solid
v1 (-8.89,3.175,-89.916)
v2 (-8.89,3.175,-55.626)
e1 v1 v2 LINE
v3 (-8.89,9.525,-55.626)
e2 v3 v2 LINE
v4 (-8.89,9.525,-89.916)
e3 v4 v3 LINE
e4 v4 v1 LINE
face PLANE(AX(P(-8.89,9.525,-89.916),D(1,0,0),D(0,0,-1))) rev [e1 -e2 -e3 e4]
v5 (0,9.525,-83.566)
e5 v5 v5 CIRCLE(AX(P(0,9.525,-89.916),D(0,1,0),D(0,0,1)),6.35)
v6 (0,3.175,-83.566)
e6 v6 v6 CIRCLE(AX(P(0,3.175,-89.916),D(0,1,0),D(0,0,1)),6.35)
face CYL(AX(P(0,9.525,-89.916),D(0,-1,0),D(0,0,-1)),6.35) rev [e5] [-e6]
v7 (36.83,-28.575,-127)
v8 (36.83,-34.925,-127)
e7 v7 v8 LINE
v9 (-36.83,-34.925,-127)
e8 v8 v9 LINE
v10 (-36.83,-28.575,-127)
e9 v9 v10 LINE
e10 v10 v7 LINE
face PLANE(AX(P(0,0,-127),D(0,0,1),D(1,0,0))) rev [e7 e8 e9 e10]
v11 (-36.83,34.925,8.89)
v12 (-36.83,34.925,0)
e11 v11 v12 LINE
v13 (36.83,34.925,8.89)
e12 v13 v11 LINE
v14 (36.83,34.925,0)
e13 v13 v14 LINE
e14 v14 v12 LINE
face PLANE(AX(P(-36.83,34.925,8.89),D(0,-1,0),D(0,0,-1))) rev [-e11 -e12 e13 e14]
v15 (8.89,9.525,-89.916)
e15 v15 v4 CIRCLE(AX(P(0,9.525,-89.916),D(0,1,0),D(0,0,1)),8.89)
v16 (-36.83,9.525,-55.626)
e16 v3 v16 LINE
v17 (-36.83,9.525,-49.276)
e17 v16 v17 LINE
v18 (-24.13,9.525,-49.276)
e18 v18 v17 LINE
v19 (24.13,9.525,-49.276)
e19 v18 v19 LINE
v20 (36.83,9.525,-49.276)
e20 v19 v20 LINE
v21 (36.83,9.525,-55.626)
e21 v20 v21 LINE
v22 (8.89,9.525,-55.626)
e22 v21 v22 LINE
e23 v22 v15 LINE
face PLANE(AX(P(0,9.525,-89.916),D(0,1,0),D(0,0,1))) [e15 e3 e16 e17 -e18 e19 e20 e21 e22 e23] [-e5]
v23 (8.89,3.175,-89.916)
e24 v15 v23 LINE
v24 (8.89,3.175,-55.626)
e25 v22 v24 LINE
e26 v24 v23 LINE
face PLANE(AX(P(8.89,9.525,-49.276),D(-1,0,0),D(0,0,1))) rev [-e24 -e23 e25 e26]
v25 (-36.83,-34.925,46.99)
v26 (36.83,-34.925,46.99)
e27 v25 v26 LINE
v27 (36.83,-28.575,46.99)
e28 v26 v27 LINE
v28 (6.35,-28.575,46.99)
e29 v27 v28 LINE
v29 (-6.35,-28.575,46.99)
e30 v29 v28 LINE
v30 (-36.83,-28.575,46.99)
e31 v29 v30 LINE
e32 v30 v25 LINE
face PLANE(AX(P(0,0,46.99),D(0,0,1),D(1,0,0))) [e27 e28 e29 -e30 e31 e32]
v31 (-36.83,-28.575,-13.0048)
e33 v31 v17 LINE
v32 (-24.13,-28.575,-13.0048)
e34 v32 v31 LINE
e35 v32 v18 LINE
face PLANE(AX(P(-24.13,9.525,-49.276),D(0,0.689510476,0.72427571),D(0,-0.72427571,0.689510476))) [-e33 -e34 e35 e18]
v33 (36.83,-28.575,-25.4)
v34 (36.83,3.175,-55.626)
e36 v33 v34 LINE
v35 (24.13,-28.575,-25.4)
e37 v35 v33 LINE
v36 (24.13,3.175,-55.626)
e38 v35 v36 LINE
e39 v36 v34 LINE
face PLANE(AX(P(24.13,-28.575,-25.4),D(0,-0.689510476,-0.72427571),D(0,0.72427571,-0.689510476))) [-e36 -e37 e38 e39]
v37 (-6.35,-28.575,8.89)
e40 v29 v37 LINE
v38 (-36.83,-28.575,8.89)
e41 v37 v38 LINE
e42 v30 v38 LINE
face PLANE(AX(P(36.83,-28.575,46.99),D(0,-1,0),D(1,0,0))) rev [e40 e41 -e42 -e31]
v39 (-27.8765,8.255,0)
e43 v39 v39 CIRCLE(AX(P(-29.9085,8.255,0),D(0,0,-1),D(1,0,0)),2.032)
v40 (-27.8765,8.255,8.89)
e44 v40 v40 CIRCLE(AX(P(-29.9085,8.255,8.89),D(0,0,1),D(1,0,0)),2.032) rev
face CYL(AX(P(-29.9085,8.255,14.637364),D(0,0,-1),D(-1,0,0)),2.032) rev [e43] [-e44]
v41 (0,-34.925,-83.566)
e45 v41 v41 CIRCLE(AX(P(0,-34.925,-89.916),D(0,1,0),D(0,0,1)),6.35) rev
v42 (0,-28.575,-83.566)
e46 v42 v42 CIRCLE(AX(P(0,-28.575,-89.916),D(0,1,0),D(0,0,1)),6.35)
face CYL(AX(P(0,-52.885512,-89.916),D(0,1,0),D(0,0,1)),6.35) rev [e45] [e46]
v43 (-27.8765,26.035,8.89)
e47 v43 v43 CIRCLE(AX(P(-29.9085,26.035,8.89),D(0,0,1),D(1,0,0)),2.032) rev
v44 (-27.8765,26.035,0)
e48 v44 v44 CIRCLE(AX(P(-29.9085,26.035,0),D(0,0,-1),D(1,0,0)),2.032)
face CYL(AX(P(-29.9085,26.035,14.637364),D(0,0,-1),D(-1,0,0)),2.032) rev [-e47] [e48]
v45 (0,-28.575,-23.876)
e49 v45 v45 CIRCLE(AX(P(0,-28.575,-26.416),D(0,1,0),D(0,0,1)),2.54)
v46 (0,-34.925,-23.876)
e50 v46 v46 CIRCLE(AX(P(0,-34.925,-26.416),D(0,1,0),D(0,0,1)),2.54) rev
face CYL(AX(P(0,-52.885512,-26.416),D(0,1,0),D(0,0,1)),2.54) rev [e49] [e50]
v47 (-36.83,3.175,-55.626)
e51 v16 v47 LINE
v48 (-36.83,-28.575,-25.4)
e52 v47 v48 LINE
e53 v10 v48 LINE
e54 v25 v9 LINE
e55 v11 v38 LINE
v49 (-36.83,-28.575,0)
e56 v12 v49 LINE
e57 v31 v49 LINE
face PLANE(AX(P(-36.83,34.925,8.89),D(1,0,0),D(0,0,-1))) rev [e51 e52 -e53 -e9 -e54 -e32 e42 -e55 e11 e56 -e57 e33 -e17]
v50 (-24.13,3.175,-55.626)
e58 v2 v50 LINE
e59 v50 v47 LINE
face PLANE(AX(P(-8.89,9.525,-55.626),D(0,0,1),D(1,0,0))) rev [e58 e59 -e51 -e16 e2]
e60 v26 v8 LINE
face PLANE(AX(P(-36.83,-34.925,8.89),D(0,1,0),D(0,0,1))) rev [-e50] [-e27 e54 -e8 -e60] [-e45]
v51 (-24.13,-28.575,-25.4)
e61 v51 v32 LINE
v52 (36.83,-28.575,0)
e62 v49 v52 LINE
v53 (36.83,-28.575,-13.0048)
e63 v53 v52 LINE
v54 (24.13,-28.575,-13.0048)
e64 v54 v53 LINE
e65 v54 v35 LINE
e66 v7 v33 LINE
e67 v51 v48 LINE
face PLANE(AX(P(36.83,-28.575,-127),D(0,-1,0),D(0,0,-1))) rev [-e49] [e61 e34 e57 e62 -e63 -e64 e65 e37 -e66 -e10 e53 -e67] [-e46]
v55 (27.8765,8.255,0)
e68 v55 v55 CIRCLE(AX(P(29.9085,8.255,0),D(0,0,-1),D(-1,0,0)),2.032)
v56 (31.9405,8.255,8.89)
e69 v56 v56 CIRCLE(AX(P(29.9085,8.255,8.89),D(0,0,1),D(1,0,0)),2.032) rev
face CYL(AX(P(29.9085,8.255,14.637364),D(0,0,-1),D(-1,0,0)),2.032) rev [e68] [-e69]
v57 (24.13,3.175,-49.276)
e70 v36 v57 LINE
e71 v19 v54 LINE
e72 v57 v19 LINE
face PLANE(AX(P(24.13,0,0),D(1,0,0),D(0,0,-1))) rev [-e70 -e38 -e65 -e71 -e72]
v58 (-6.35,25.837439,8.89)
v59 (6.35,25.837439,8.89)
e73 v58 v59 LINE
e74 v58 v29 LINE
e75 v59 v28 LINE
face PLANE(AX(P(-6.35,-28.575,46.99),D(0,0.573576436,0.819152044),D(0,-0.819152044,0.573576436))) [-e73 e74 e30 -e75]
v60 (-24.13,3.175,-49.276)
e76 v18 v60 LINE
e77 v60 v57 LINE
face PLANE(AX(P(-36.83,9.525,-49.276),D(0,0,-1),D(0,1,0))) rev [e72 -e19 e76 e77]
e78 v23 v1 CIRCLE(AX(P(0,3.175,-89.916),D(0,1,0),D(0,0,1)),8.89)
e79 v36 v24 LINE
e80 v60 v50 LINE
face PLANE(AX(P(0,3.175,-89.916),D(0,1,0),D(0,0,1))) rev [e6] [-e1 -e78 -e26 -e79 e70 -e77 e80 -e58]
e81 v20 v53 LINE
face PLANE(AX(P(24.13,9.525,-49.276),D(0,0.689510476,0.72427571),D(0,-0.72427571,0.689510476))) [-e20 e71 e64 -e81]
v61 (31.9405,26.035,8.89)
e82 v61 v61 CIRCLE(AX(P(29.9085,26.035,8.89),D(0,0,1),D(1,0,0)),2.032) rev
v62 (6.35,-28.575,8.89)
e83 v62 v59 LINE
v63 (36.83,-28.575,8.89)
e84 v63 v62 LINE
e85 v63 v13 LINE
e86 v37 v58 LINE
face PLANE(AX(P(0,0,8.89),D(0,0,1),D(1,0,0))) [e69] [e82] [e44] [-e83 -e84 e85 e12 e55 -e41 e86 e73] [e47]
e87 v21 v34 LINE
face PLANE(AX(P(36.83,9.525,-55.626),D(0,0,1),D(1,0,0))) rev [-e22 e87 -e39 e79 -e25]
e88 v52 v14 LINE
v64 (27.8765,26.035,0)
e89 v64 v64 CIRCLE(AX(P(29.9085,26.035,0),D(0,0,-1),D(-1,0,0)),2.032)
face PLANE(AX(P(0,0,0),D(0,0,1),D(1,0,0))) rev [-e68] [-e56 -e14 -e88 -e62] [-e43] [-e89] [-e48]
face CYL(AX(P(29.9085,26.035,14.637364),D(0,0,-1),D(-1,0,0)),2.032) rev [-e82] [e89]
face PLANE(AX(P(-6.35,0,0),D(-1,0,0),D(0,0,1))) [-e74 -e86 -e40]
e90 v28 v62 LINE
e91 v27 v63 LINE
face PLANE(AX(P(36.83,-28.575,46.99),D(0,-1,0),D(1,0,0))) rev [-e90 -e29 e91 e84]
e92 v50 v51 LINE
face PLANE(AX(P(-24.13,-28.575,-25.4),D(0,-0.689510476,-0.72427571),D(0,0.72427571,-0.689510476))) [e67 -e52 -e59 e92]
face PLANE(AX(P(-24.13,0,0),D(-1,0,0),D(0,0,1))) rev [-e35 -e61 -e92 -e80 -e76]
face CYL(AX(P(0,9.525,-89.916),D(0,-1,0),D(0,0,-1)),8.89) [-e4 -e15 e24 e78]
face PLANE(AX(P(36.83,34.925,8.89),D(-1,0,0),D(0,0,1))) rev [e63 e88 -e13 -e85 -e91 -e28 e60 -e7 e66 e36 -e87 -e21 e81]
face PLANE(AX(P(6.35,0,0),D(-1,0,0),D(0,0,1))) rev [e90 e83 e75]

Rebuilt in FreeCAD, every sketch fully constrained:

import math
import FreeCAD as App
import Part
import Sketcher

V = App.Vector
Q = App.Units.Quantity


def add_polygon(sketch, points):
    """Adds a closed chain of lines whose ends are joined by coincident constraints."""
    first, n = sketch.GeometryCount, len(points)
    for a, b in zip(points, points[1:] + points[:1]):
        sketch.addGeometry(Part.LineSegment(App.Vector(*a, 0), App.Vector(*b, 0)), False)
    for i in range(n):
        sketch.addConstraint(Sketcher.Constraint("Coincident", first + i, 2, first + (i + 1) % n, 1))

doc = App.newDocument("Part")
body = doc.addObject("PartDesign::Body", "Body")

sketch1 = doc.addObject("Sketcher::SketchObject", "Sketch")
body.addObject(sketch1)
sketch1.AttachmentSupport = (doc.XY_Plane, [""])
sketch1.MapMode = "FlatFace"
add_polygon(sketch1, [(-37, 35), (-37, -35), (37, -35), (37, 35)])
sketch1.addConstraint(Sketcher.Constraint("Vertical", 0))
sketch1.addConstraint(Sketcher.Constraint("Horizontal", 1))
sketch1.addConstraint(Sketcher.Constraint("Vertical", 2))
sketch1.addConstraint(Sketcher.Constraint("Horizontal", 3))
sketch1.addConstraint(Sketcher.Constraint("Symmetric", 0, 2, 2, 2, -1, 1))
sketch1.addConstraint(Sketcher.Constraint("DistanceX", 1, 1, 1, 2, Q("2.9 in")))
sketch1.addConstraint(Sketcher.Constraint("DistanceY", 0, 2, 0, 1, Q("2.75 in")))
pad1 = doc.addObject("PartDesign::Pad", "Pad")
body.addObject(pad1)
pad1.Profile = sketch1
pad1.Length = Q("0.35 in")

sketch2 = doc.addObject("Sketcher::SketchObject", "Sketch001")
body.addObject(sketch2)
sketch2.AttachmentSupport = (doc.XY_Plane, [""])
sketch2.MapMode = "FlatFace"
sketch2.addGeometry(Part.Circle(V(29.9, 26, 0), V(0, 0, 1), 2), False)
sketch2.addGeometry(Part.Circle(V(29.9, 8.3, 0), V(0, 0, 1), 2), False)
sketch2.addGeometry(Part.Circle(V(-29.9, 8.3, 0), V(0, 0, 1), 2), False)
sketch2.addGeometry(Part.Circle(V(-29.9, 26, 0), V(0, 0, 1), 2), False)
sketch2.addConstraint(Sketcher.Constraint("Equal", 0, 1))
sketch2.addConstraint(Sketcher.Constraint("Equal", 1, 2))
sketch2.addConstraint(Sketcher.Constraint("Equal", 2, 3))
sketch2.addConstraint(Sketcher.Constraint("Symmetric", 1, 3, 2, 3, -2))
sketch2.addConstraint(Sketcher.Constraint("Symmetric", 0, 3, 3, 3, -2))
sketch2.addConstraint(Sketcher.Constraint("Vertical", 0, 3, 1, 3))
sketch2.addConstraint(Sketcher.Constraint("Diameter", 0, Q("0.16 in")))
sketch2.addConstraint(Sketcher.Constraint("DistanceY", 1, 3, 0, 3, Q("0.7 in")))
sketch2.addConstraint(Sketcher.Constraint("DistanceY", -1, 1, 0, 3, Q("1.025 in")))
sketch2.addConstraint(Sketcher.Constraint("DistanceX", 2, 3, 1, 3, Q("2.355 in")))
pocket1 = doc.addObject("PartDesign::Pocket", "Pocket")
body.addObject(pocket1)
pocket1.Profile = sketch2
pocket1.Length = Q("0.35 in")
pocket1.Reversed = True

sketch3 = doc.addObject("Sketcher::SketchObject", "Sketch002")
body.addObject(sketch3)
sketch3.AttachmentSupport = (doc.XY_Plane, [""])
sketch3.MapMode = "FlatFace"
add_polygon(sketch3, [(37, -29), (37, -35), (-37, -35), (-37, -29)])
sketch3.addConstraint(Sketcher.Constraint("Vertical", 0))
sketch3.addConstraint(Sketcher.Constraint("Horizontal", 1))
sketch3.addConstraint(Sketcher.Constraint("Vertical", 2))
sketch3.addConstraint(Sketcher.Constraint("Horizontal", 3))
sketch3.addConstraint(Sketcher.Constraint("DistanceX", 1, 2, 1, 1, Q("2.9 in")))
sketch3.addConstraint(Sketcher.Constraint("DistanceY", 0, 2, 0, 1, Q("0.25 in")))
sketch3.addConstraint(Sketcher.Constraint("DistanceX", -1, 1, 0, 2, Q("1.45 in")))
sketch3.addConstraint(Sketcher.Constraint("DistanceY", 0, 2, -1, 1, Q("1.375 in")))
pad2 = doc.addObject("PartDesign::Pad", "Pad001")
body.addObject(pad2)
pad2.Profile = sketch3
pad2.Length = Q("5 in")
pad2.Reversed = True

sketch4 = doc.addObject("Sketcher::SketchObject", "Sketch003")
body.addObject(sketch4)
sketch4.AttachmentSupport = (doc.XY_Plane, [""])
sketch4.MapMode = "FlatFace"
sketch4.AttachmentOffset = App.Placement(V(0, 0, 0.35 * 25.4), App.Rotation())
add_polygon(sketch4, [(-37, -29), (-37, -35), (37, -35), (37, -29)])
sketch4.addConstraint(Sketcher.Constraint("Vertical", 0))
sketch4.addConstraint(Sketcher.Constraint("Horizontal", 1))
sketch4.addConstraint(Sketcher.Constraint("Vertical", 2))
sketch4.addConstraint(Sketcher.Constraint("Horizontal", 3))
sketch4.addConstraint(Sketcher.Constraint("DistanceX", 1, 1, 1, 2, Q("2.9 in")))
sketch4.addConstraint(Sketcher.Constraint("DistanceY", 0, 2, 0, 1, Q("0.25 in")))
sketch4.addConstraint(Sketcher.Constraint("DistanceX", 0, 2, -1, 1, Q("1.45 in")))
sketch4.addConstraint(Sketcher.Constraint("DistanceY", 0, 2, -1, 1, Q("1.375 in")))
pad3 = doc.addObject("PartDesign::Pad", "Pad002")
body.addObject(pad3)
pad3.Profile = sketch4
pad3.Length = Q("1.5 in")

sketch5 = doc.addObject("Sketcher::SketchObject", "Sketch004")
body.addObject(sketch5)
sketch5.AttachmentSupport = (doc.YZ_Plane, [""])
sketch5.MapMode = "FlatFace"
add_polygon(sketch5, [(26, 9), (-29, 47), (-29, 9)])
sketch5.addConstraint(Sketcher.Constraint("Vertical", 1))
sketch5.addConstraint(Sketcher.Constraint("Horizontal", 2))
sketch5.addConstraint(Sketcher.Constraint("DistanceY", 1, 2, 1, 1, Q("1.5 in")))
sketch5.addConstraint(Sketcher.Constraint("Angle", 0, Q("145 deg")))
sketch5.addConstraint(Sketcher.Constraint("DistanceY", -1, 1, 0, 2, Q("1.85 in")))
sketch5.addConstraint(Sketcher.Constraint("DistanceX", 0, 2, -1, 1, Q("1.125 in")))
pad4 = doc.addObject("PartDesign::Pad", "Pad003")
body.addObject(pad4)
pad4.Profile = sketch5
pad4.Length = Q("0.5 in")
pad4.Midplane = True

sketch6 = doc.addObject("Sketcher::SketchObject", "Sketch005")
body.addObject(sketch6)
sketch6.AttachmentSupport = (doc.XZ_Plane, [""])
sketch6.MapMode = "FlatFace"
sketch6.AttachmentOffset = App.Placement(V(0, 0, 1.125 * 25.4), App.Rotation())
sketch6.addGeometry(Part.Circle(V(0, -26.4, 0), V(0, 0, 1), 2.5), False)
sketch6.addGeometry(Part.Circle(V(0, -89.9, 0), V(0, 0, 1), 6.3), False)
sketch6.addConstraint(Sketcher.Constraint("PointOnObject", 0, 3, -2))
sketch6.addConstraint(Sketcher.Constraint("PointOnObject", 1, 3, -2))
sketch6.addConstraint(Sketcher.Constraint("Diameter", 0, Q("0.2 in")))
sketch6.addConstraint(Sketcher.Constraint("Diameter", 1, Q("0.5 in")))
sketch6.addConstraint(Sketcher.Constraint("DistanceY", 1, 3, 0, 3, Q("2.5 in")))
sketch6.addConstraint(Sketcher.Constraint("DistanceY", 0, 3, -1, 1, Q("1.04 in")))
pocket2 = doc.addObject("PartDesign::Pocket", "Pocket001")
body.addObject(pocket2)
pocket2.Profile = sketch6
pocket2.Length = Q("0.25 in")
pocket2.Reversed = True

sketch7 = doc.addObject("Sketcher::SketchObject", "Sketch006")
body.addObject(sketch7)
sketch7.AttachmentSupport = (doc.YZ_Plane, [""])
sketch7.MapMode = "FlatFace"
sketch7.AttachmentOffset = App.Placement(V(0, 0, -1.45 * 25.4), App.Rotation())
add_polygon(sketch7, [(3, -56), (-29, -25), (-29, -13), (10, -49), (3, -49)])
sketch7.addConstraint(Sketcher.Constraint("Vertical", 1))
sketch7.addConstraint(Sketcher.Constraint("Horizontal", 3))
sketch7.addConstraint(Sketcher.Constraint("Vertical", 4))
sketch7.addConstraint(Sketcher.Constraint("Parallel", 0, 2))
sketch7.addConstraint(Sketcher.Constraint("Equal", 3, 4))
sketch7.addConstraint(Sketcher.Constraint("DistanceY", 0, 2, -1, 1, Q("1 in")))
sketch7.addConstraint(Sketcher.Constraint("DistanceX", 3, 2, 3, 1, Q("0.25 in")))
sketch7.addConstraint(Sketcher.Constraint("DistanceX", 0, 2, 2, 2, Q("1.5 in")))
sketch7.addConstraint(Sketcher.Constraint("DistanceY", 1, 1, 1, 2, Q("0.488 in")))
sketch7.addConstraint(Sketcher.Constraint("DistanceX", 0, 2, -1, 1, Q("1.125 in")))
pad5 = doc.addObject("PartDesign::Pad", "Pad004")
body.addObject(pad5)
pad5.Profile = sketch7
pad5.Length = Q("0.5 in")

sketch8 = doc.addObject("Sketcher::SketchObject", "Sketch007")
body.addObject(sketch8)
sketch8.AttachmentSupport = (doc.XZ_Plane, [""])
sketch8.MapMode = "FlatFace"
sketch8.AttachmentOffset = App.Placement(V(0, 0, -0.125 * 25.4), App.Rotation())
sketch8.addGeometry(Part.LineSegment(V(-37, -49, 0), V(9, -49, 0)), False)
sketch8.addGeometry(Part.LineSegment(V(9, -49, 0), V(9, -90, 0)), False)
sketch8.addGeometry(Part.ArcOfCircle(Part.Circle(V(0, -90, 0), V(0, 0, 1), 9), math.radians(180), math.radians(360)), False)
sketch8.addGeometry(Part.LineSegment(V(-9, -90, 0), V(-9, -56, 0)), False)
sketch8.addGeometry(Part.LineSegment(V(-9, -56, 0), V(-37, -56, 0)), False)
sketch8.addGeometry(Part.LineSegment(V(-37, -56, 0), V(-37, -49, 0)), False)
sketch8.addGeometry(Part.Circle(V(0, -90, 0), V(0, 0, 1), 6), False)
sketch8.addConstraint(Sketcher.Constraint("Coincident", 0, 2, 1, 1))
sketch8.addConstraint(Sketcher.Constraint("Tangent", 1, 2, 2, 2))
sketch8.addConstraint(Sketcher.Constraint("Tangent", 2, 1, 3, 1))
sketch8.addConstraint(Sketcher.Constraint("Coincident", 3, 2, 4, 1))
sketch8.addConstraint(Sketcher.Constraint("Coincident", 4, 2, 5, 1))
sketch8.addConstraint(Sketcher.Constraint("Coincident", 5, 2, 0, 1))
sketch8.addConstraint(Sketcher.Constraint("Horizontal", 0))
sketch8.addConstraint(Sketcher.Constraint("Vertical", 1))
sketch8.addConstraint(Sketcher.Constraint("Vertical", 3))
sketch8.addConstraint(Sketcher.Constraint("Horizontal", 4))
sketch8.addConstraint(Sketcher.Constraint("Vertical", 5))
sketch8.addConstraint(Sketcher.Constraint("Coincident", 6, 3, 2, 3))
sketch8.addConstraint(Sketcher.Constraint("PointOnObject", 2, 3, -2))
sketch8.addConstraint(Sketcher.Constraint("Diameter", 6, Q("0.5 in")))
sketch8.addConstraint(Sketcher.Constraint("Radius", 2, Q("0.35 in")))
sketch8.addConstraint(Sketcher.Constraint("DistanceX", 0, 1, 0, 2, Q("1.8 in")))
sketch8.addConstraint(Sketcher.Constraint("DistanceY", 1, 2, 1, 1, Q("1.6 in")))
sketch8.addConstraint(Sketcher.Constraint("DistanceY", 3, 1, 3, 2, Q("1.35 in")))
sketch8.addConstraint(Sketcher.Constraint("DistanceY", 2, 3, -1, 1, Q("3.54 in")))
pad6 = doc.addObject("PartDesign::Pad", "Pad005")
body.addObject(pad6)
pad6.Profile = sketch8
pad6.Length = Q("0.25 in")
pad6.Reversed = True

sketch9 = doc.addObject("Sketcher::SketchObject", "Sketch008")
body.addObject(sketch9)
sketch9.AttachmentSupport = (doc.YZ_Plane, [""])
sketch9.MapMode = "FlatFace"
sketch9.AttachmentOffset = App.Placement(V(0, 0, 1.45 * 25.4), App.Rotation())
add_polygon(sketch9, [(-29, -25), (3, -56), (3, -49), (10, -49), (-29, -13)])
sketch9.addConstraint(Sketcher.Constraint("Vertical", 1))
sketch9.addConstraint(Sketcher.Constraint("Horizontal", 2))
sketch9.addConstraint(Sketcher.Constraint("Vertical", 4))
sketch9.addConstraint(Sketcher.Constraint("Parallel", 0, 3))
sketch9.addConstraint(Sketcher.Constraint("Equal", 2, 1))
sketch9.addConstraint(Sketcher.Constraint("DistanceY", 4, 2, -1, 1, Q("1 in")))
sketch9.addConstraint(Sketcher.Constraint("DistanceX", 2, 1, 2, 2, Q("0.25 in")))
sketch9.addConstraint(Sketcher.Constraint("DistanceX", 3, 2, 2, 2, Q("1.5 in")))
sketch9.addConstraint(Sketcher.Constraint("DistanceY", 4, 2, 4, 1, Q("0.488 in")))
sketch9.addConstraint(Sketcher.Constraint("DistanceX", -1, 1, 0, 2, Q("0.125 in")))
pad7 = doc.addObject("PartDesign::Pad", "Pad006")
body.addObject(pad7)
pad7.Profile = sketch9
pad7.Length = Q("0.5 in")
pad7.Reversed = True

sketch10 = doc.addObject("Sketcher::SketchObject", "Sketch009")
body.addObject(sketch10)
sketch10.AttachmentSupport = (doc.XZ_Plane, [""])
sketch10.MapMode = "FlatFace"
sketch10.AttachmentOffset = App.Placement(V(0, 0, -0.125 * 25.4), App.Rotation())
add_polygon(sketch10, [(9, -56), (9, -49), (37, -49), (37, -56)])
sketch10.addConstraint(Sketcher.Constraint("Vertical", 0))
sketch10.addConstraint(Sketcher.Constraint("Horizontal", 1))
sketch10.addConstraint(Sketcher.Constraint("Vertical", 2))
sketch10.addConstraint(Sketcher.Constraint("Horizontal", 3))
sketch10.addConstraint(Sketcher.Constraint("DistanceX", 1, 1, 1, 2, Q("1.1 in")))
sketch10.addConstraint(Sketcher.Constraint("DistanceY", 0, 1, 0, 2, Q("0.25 in")))
sketch10.addConstraint(Sketcher.Constraint("DistanceX", -1, 1, 0, 2, Q("0.35 in")))
sketch10.addConstraint(Sketcher.Constraint("DistanceY", 0, 2, -1, 1, Q("1.94 in")))
pad8 = doc.addObject("PartDesign::Pad", "Pad007")
body.addObject(pad8)
pad8.Profile = sketch10
pad8.Length = Q("0.25 in")
pad8.Reversed = True

doc.recompute()
